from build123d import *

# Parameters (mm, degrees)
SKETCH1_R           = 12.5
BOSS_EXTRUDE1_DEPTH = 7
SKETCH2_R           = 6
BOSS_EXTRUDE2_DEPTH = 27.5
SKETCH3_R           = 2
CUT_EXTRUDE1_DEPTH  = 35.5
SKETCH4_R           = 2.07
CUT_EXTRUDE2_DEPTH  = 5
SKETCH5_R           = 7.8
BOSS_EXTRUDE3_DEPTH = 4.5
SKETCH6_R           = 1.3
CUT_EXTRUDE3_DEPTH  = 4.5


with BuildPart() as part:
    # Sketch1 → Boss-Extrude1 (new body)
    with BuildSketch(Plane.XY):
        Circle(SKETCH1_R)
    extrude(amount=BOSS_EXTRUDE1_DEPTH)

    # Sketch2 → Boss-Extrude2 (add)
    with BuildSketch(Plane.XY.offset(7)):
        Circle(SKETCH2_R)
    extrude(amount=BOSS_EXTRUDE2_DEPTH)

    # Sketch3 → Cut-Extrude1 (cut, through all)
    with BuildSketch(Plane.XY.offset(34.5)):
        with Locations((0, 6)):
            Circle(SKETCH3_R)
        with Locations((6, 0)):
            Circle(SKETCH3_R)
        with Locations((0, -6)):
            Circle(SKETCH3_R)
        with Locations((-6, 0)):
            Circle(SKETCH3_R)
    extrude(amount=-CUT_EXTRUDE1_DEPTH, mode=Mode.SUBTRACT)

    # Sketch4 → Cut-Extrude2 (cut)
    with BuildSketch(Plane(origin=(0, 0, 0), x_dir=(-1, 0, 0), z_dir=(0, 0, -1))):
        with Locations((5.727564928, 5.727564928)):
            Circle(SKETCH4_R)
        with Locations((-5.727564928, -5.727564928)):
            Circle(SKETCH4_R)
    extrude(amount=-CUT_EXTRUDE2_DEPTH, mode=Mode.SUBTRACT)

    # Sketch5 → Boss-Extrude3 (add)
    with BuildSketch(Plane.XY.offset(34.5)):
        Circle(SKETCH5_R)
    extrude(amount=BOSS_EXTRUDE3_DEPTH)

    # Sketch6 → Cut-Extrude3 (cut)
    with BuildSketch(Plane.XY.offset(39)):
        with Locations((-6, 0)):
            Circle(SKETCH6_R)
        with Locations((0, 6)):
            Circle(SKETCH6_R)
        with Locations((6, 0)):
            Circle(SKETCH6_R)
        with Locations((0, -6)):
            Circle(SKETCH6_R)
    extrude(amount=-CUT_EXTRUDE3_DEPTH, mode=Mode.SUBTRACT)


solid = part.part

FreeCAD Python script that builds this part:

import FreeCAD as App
import Part
import Sketcher
from FreeCAD import Vector

doc = App.newDocument("Part")
body = doc.addObject("PartDesign::Body", "Body")

sketch1 = body.newObject("Sketcher::SketchObject", "Sketch")
sketch1.AttachmentSupport = (doc.getObject("XY_Plane"), [""])
sketch1.MapMode = "FlatFace"
sketch1.addGeometry(Part.Circle(Vector(0, 0, 0), Vector(0, 0, 1), 12), False)
sketch1.addConstraint([
    Sketcher.Constraint("Coincident", 0, 3, -1, 1),
    Sketcher.Constraint("Diameter", 0, 25.0),
])
pad1 = body.newObject("PartDesign::Pad", "Pad")
pad1.Profile = sketch1
pad1.Length = 7

sketch2 = body.newObject("Sketcher::SketchObject", "Sketch001")
sketch2.AttachmentSupport = (doc.getObject("XY_Plane"), [""])
sketch2.MapMode = "FlatFace"
sketch2.AttachmentOffset = App.Placement(Vector(0, 0, 7), App.Rotation())
sketch2.addGeometry(Part.Circle(Vector(0, 0, 0), Vector(0, 0, 1), 6), False)
sketch2.addConstraint([
    Sketcher.Constraint("Coincident", 0, 3, -1, 1),
    Sketcher.Constraint("Diameter", 0, 12.0),
])
pad2 = body.newObject("PartDesign::Pad", "Pad001")
pad2.Profile = sketch2
pad2.Length = 27.5

sketch3 = body.newObject("Sketcher::SketchObject", "Sketch002")
sketch3.AttachmentSupport = (doc.getObject("XY_Plane"), [""])
sketch3.MapMode = "FlatFace"
sketch3.AttachmentOffset = App.Placement(Vector(0, 0, 34.5), App.Rotation())
sketch3.addGeometry([
    Part.Circle(Vector(0, 6, 0), Vector(0, 0, 1), 2),
    Part.Circle(Vector(6, 0, 0), Vector(0, 0, 1), 2),
    Part.Circle(Vector(0, -6, 0), Vector(0, 0, 1), 2),
    Part.Circle(Vector(-6, 0, 0), Vector(0, 0, 1), 2),
], False)
sketch3.addConstraint([
    Sketcher.Constraint("Equal", 0, 1),
    Sketcher.Constraint("Equal", 1, 2),
    Sketcher.Constraint("Equal", 2, 3),
    Sketcher.Constraint("Symmetric", 0, 3, 2, 3, -1, 1),
    Sketcher.Constraint("Symmetric", 1, 3, 3, 3, -1, 1),
    Sketcher.Constraint("PointOnObject", 0, 3, -2),
    Sketcher.Constraint("PointOnObject", 1, 3, -1),
    Sketcher.Constraint("Diameter", 0, 4.0),
    Sketcher.Constraint("DistanceY", -1, 1, 0, 3, 6.0),
    Sketcher.Constraint("DistanceX", -1, 1, 1, 3, 6.0),
])
pocket1 = body.newObject("PartDesign::Pocket", "Pocket")
pocket1.Profile = sketch3
pocket1.Type = "ThroughAll"

sketch4 = body.newObject("Sketcher::SketchObject", "Sketch003")
sketch4.AttachmentSupport = (doc.getObject("XY_Plane"), [""])
sketch4.MapMode = "FlatFace"
sketch4.addGeometry([
    Part.Circle(Vector(-5.7, 5.7, 0), Vector(0, 0, 1), 2.1),
    Part.Circle(Vector(5.7, -5.7, 0), Vector(0, 0, 1), 2.1),
], False)
sketch4.addConstraint([
    Sketcher.Constraint("Equal", 0, 1),
    Sketcher.Constraint("Symmetric", 0, 3, 1, 3, -1, 1),
    Sketcher.Constraint("Diameter", 0, 4.14),
    Sketcher.Constraint("DistanceX", 0, 3, 1, 3, 11.45513),
    Sketcher.Constraint("DistanceY", 1, 3, 0, 3, 11.45513),
])
pocket2 = body.newObject("PartDesign::Pocket", "Pocket001")
pocket2.Profile = sketch4
pocket2.Length = 5
pocket2.Reversed = True

sketch5 = body.newObject("Sketcher::SketchObject", "Sketch004")
sketch5.AttachmentSupport = (doc.getObject("XY_Plane"), [""])
sketch5.MapMode = "FlatFace"
sketch5.AttachmentOffset = App.Placement(Vector(0, 0, 34.5), App.Rotation())
sketch5.addGeometry(Part.Circle(Vector(0, 0, 0), Vector(0, 0, 1), 8), False)
sketch5.addConstraint([
    Sketcher.Constraint("Coincident", 0, 3, -1, 1),
    Sketcher.Constraint("Diameter", 0, 15.6),
])
pad3 = body.newObject("PartDesign::Pad", "Pad002")
pad3.Profile = sketch5
pad3.Length = 4.5

sketch6 = body.newObject("Sketcher::SketchObject", "Sketch005")
sketch6.AttachmentSupport = (doc.getObject("XY_Plane"), [""])
sketch6.MapMode = "FlatFace"
sketch6.AttachmentOffset = App.Placement(Vector(0, 0, 39), App.Rotation())
sketch6.addGeometry([
    Part.Circle(Vector(-6, 0, 0), Vector(0, 0, 1), 1.3),
    Part.Circle(Vector(0, 6, 0), Vector(0, 0, 1), 1.3),
    Part.Circle(Vector(6, 0, 0), Vector(0, 0, 1), 1.3),
    Part.Circle(Vector(0, -6, 0), Vector(0, 0, 1), 1.3),
], False)
sketch6.addConstraint([
    Sketcher.Constraint("Equal", 0, 1),
    Sketcher.Constraint("Equal", 1, 2),
    Sketcher.Constraint("Equal", 2, 3),
    Sketcher.Constraint("Symmetric", 0, 3, 2, 3, -1, 1),
    Sketcher.Constraint("Symmetric", 1, 3, 3, 3, -1, 1),
    Sketcher.Constraint("PointOnObject", 0, 3, -1),
    Sketcher.Constraint("PointOnObject", 1, 3, -2),
    Sketcher.Constraint("Diameter", 0, 2.6),
    Sketcher.Constraint("DistanceX", 0, 3, -1, 1, 6.0),
    Sketcher.Constraint("DistanceY", -1, 1, 1, 3, 6.0),
])
pocket3 = body.newObject("PartDesign::Pocket", "Pocket002")
pocket3.Profile = sketch6
pocket3.Length = 4.5

doc.recompute()
